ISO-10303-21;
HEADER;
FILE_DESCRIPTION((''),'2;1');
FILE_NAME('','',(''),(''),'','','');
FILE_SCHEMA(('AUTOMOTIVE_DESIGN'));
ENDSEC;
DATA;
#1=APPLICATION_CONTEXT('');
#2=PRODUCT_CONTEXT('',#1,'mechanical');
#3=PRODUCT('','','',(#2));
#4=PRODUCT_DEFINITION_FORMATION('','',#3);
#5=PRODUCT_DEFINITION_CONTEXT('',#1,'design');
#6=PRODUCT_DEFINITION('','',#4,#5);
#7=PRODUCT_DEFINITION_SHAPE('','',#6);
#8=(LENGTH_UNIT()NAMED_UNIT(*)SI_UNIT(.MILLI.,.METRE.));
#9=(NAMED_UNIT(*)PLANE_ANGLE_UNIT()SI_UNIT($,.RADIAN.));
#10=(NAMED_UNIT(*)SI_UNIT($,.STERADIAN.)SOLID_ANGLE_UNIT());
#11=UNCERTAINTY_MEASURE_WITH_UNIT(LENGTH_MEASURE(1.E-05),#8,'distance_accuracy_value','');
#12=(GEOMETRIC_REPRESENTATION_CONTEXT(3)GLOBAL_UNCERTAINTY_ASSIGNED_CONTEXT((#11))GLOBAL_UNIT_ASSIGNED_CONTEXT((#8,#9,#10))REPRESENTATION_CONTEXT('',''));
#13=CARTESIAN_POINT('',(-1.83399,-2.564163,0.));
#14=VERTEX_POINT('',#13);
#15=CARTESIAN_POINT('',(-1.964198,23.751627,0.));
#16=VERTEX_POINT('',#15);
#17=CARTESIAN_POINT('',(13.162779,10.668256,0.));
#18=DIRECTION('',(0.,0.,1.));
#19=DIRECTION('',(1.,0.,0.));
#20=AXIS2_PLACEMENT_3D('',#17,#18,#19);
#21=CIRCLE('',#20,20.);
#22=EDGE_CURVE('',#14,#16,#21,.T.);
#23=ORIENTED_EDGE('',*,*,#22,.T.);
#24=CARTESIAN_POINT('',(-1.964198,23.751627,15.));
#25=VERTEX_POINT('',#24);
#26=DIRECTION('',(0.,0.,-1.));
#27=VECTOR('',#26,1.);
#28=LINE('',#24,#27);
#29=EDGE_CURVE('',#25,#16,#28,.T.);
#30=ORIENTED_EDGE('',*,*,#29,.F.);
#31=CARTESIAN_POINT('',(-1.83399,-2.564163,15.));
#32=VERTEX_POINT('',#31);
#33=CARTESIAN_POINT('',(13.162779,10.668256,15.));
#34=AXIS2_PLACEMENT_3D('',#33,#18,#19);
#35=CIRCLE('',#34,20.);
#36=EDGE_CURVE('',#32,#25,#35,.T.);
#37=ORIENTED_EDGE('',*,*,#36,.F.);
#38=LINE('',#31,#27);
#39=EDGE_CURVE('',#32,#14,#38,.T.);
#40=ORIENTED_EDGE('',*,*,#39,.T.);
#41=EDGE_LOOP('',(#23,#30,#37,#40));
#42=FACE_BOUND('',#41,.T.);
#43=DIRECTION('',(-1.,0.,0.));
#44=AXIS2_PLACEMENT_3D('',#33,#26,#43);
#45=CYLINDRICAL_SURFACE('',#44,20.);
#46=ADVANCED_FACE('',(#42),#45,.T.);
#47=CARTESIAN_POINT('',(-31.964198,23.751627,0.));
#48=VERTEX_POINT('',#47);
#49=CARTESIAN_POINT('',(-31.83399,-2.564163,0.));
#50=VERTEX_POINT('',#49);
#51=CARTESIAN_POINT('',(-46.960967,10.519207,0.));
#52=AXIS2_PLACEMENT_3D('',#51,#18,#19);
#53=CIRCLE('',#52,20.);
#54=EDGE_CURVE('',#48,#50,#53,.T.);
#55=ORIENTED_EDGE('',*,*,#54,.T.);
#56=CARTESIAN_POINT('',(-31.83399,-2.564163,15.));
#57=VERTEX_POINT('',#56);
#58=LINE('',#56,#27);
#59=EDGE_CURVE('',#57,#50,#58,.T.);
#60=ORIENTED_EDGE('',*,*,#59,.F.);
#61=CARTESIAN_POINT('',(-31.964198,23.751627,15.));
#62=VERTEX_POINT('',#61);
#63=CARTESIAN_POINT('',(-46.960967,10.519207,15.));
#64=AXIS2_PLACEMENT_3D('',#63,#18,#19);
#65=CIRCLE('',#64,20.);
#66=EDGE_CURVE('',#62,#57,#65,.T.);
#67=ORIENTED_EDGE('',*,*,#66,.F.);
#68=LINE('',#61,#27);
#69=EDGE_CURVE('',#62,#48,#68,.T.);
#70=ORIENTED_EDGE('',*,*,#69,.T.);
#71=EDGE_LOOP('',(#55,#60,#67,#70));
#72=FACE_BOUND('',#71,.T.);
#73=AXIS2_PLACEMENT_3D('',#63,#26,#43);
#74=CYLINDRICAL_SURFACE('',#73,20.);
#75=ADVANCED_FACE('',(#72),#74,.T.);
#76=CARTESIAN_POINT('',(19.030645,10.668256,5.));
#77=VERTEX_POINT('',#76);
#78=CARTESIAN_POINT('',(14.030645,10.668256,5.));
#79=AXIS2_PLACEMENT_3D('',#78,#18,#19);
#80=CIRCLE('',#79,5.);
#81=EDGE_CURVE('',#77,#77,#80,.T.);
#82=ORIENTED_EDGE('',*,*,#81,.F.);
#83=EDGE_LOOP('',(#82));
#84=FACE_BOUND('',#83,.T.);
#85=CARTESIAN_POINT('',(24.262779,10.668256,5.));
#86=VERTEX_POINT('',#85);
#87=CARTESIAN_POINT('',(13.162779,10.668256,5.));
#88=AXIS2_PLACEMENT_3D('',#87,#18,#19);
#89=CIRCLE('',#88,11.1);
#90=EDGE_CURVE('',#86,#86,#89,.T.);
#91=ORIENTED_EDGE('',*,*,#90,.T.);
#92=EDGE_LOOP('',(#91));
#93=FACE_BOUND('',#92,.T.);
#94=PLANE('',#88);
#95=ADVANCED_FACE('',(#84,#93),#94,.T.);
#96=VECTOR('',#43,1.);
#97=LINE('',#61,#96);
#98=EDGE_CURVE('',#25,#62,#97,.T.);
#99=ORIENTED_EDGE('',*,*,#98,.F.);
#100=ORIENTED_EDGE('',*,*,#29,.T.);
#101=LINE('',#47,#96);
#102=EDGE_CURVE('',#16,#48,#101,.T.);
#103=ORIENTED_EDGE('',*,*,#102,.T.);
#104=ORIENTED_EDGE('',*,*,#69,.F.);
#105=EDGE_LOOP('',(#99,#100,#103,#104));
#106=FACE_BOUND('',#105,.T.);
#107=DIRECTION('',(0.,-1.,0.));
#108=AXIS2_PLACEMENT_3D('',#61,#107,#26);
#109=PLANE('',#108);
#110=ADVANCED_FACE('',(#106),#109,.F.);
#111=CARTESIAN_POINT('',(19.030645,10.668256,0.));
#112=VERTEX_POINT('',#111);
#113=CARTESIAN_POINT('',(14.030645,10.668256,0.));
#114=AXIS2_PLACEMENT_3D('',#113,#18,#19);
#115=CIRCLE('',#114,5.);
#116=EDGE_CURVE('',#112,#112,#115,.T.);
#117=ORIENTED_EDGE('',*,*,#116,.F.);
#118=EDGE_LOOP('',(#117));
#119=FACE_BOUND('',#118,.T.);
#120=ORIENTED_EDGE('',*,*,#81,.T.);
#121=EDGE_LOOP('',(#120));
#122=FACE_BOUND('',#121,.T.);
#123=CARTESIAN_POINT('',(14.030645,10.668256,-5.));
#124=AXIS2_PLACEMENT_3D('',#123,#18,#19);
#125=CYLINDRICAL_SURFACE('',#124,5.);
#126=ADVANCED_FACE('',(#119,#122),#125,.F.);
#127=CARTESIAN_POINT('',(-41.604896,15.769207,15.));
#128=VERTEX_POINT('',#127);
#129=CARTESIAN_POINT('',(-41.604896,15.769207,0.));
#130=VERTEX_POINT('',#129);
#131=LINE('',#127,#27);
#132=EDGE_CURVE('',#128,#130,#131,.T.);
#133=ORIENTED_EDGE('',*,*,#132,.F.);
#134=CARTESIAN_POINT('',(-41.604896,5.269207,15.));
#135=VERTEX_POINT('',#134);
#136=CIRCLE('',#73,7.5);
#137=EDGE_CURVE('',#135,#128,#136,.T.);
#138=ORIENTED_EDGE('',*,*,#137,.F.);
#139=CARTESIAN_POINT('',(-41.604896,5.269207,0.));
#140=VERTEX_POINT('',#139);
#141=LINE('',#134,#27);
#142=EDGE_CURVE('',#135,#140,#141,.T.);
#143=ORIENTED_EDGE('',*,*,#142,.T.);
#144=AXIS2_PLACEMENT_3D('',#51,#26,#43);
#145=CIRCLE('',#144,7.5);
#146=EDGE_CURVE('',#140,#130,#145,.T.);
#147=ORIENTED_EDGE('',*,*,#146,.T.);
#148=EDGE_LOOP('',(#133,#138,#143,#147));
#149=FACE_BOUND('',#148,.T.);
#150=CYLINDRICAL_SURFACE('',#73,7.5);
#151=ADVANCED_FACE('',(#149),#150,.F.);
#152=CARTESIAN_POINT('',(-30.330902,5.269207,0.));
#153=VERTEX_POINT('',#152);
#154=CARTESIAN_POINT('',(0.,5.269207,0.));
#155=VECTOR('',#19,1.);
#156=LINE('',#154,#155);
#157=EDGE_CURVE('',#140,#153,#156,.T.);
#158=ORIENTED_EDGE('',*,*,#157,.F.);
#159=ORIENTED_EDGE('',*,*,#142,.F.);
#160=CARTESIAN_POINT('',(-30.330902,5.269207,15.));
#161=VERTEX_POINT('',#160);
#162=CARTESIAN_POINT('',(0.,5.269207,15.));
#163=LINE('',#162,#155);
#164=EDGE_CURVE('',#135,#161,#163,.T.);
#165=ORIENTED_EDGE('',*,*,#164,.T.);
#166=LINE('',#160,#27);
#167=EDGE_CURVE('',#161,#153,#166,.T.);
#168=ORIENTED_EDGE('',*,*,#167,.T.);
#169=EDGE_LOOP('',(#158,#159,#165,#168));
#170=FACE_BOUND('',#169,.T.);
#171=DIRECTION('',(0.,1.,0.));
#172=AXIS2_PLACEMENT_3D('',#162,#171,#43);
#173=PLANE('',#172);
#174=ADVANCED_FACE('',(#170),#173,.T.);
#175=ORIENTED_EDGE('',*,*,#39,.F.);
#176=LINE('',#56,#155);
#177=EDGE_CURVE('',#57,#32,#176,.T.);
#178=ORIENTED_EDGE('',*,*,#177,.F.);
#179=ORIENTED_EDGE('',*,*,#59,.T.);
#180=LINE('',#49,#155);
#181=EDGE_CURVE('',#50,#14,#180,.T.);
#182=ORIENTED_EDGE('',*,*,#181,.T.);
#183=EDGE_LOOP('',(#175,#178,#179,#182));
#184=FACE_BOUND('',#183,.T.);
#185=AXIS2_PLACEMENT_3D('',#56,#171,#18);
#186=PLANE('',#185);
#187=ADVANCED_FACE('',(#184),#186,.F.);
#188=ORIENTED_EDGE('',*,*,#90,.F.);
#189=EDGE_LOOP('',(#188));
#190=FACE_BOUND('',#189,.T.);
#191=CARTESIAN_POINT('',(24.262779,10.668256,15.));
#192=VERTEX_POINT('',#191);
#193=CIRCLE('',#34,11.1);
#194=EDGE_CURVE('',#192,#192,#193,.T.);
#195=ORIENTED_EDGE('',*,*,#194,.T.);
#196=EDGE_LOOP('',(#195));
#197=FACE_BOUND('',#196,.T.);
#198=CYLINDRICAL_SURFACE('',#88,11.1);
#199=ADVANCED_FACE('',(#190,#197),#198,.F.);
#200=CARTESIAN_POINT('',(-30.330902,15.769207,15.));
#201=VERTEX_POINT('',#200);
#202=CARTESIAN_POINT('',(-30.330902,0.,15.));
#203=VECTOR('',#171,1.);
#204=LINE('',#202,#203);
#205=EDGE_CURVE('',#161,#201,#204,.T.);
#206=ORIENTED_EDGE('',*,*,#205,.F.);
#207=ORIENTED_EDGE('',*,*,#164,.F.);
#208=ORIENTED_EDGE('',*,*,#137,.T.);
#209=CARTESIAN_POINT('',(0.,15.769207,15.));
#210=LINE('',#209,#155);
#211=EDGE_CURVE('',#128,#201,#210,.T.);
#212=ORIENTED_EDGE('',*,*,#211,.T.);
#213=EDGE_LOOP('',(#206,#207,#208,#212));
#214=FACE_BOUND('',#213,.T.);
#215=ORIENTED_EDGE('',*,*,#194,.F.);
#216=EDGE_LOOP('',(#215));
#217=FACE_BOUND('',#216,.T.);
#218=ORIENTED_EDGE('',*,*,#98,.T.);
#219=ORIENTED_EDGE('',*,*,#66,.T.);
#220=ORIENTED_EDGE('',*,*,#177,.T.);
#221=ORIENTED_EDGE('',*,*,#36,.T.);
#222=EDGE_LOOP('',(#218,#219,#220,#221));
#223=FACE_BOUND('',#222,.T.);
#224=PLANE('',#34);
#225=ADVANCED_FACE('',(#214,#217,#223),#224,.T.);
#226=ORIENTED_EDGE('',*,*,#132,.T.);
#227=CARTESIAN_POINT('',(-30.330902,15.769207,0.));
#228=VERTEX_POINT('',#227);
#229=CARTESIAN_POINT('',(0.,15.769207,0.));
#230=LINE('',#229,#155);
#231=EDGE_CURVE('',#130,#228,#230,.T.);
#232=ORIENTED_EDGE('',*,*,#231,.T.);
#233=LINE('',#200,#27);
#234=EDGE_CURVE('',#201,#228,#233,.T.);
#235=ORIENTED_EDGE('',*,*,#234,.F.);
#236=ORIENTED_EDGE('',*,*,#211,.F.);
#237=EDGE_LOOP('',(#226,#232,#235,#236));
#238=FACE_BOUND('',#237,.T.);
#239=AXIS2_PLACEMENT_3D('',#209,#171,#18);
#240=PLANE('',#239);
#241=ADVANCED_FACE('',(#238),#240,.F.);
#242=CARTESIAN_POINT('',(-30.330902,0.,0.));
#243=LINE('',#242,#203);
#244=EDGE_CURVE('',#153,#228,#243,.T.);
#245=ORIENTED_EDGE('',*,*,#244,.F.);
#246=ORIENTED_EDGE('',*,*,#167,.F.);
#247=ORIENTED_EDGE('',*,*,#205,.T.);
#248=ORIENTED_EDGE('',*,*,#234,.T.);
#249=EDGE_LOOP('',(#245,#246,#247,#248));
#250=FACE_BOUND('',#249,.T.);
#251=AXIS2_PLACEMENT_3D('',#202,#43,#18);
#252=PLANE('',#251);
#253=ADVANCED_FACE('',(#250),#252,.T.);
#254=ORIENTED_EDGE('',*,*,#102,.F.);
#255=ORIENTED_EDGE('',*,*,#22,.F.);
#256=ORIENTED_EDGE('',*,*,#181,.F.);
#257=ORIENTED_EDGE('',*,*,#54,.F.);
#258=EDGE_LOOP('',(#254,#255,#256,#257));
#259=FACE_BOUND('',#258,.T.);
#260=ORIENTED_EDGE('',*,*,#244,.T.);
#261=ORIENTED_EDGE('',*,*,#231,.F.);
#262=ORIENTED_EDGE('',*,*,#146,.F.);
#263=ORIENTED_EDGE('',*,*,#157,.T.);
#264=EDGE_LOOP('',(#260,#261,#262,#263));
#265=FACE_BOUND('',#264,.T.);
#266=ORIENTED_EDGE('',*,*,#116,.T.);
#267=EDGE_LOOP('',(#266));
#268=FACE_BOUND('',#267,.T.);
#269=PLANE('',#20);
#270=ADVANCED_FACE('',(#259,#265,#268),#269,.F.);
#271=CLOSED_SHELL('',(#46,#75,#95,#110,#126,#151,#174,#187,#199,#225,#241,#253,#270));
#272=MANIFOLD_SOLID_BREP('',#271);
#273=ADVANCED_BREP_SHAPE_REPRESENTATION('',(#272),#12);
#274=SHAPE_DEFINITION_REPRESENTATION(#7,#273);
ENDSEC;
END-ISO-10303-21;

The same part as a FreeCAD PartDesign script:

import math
import FreeCAD as App
import Part
import Sketcher
from FreeCAD import Vector

doc = App.newDocument("Part")
params = doc.addObject("Spreadsheet::Sheet", "Params")
for row, (alias, value) in enumerate([
    ("sketch1_radius", "20 mm"),
    ("sketch1_width", "30 mm"),
    ("pad1_length", "15 mm"),
    ("sketch2_diameter", "22.2 mm"),
    ("pocket1_length", "10 mm"),
    ("sketch3_diameter", "10 mm"),
    ("pocket2_length", "10 mm"),
    ("sketch4_radius", "7.5 mm"),
    ("sketch4_height", "10.5 mm"),
], start=1):
    params.set(f"A{row}", alias)
    params.set(f"B{row}", "=" + value)
    params.setAlias(f"B{row}", alias)

body = doc.addObject("PartDesign::Body", "Body")

# Sketch on XY plane
sketch1 = body.newObject("Sketcher::SketchObject", "Sketch")
sketch1.AttachmentSupport = (doc.getObject("XY_Plane"), [""])
sketch1.MapMode = "FlatFace"
sketch1.addGeometry([
    Part.LineSegment(Vector(-32, -3, 0), Vector(-2, -3, 0)),
    Part.ArcOfCircle(Part.Circle(Vector(13, 11, 0), Vector(0, 0, 1), 20), math.radians(-139), math.radians(139)),
    Part.LineSegment(Vector(-2, 24, 0), Vector(-32, 24, 0)),
    Part.ArcOfCircle(Part.Circle(Vector(-47, 11, 0), Vector(0, 0, 1), 20), math.radians(41), math.radians(319)),
], False)
sketch1.addConstraint([
    Sketcher.Constraint("Coincident", 0, 2, 1, 1),
    Sketcher.Constraint("Coincident", 1, 2, 2, 1),
    Sketcher.Constraint("Coincident", 2, 2, 3, 1),
    Sketcher.Constraint("Coincident", 3, 2, 0, 1),
    Sketcher.Constraint("Horizontal", 0),
    Sketcher.Constraint("Horizontal", 2),
    Sketcher.Constraint("Equal", 1, 3),
    Sketcher.Constraint("Equal", 0, 2),
    Sketcher.Constraint("Radius", 1, 20.0),
    Sketcher.Constraint("DistanceX", 0, 1, 0, 2, 30.0),
    Sketcher.Constraint("DistanceX", -1, 1, 1, 3, 13.162779),
    Sketcher.Constraint("DistanceX", 0, 2, -1, 1, 1.83399),
    Sketcher.Constraint("DistanceY", 3, 3, 1, 3, 0.149049),
    Sketcher.Constraint("DistanceY", -1, 1, 1, 3, 10.668256),
])
sketch1.setExpression("Constraints[8]", "Params.sketch1_radius")
sketch1.setExpression("Constraints[9]", "Params.sketch1_width")
pad1 = body.newObject("PartDesign::Pad", "Pad")
pad1.Profile = sketch1
pad1.setExpression("Length", "Params.pad1_length")

# Sketch on XY plane
sketch2 = body.newObject("Sketcher::SketchObject", "Sketch001")
sketch2.AttachmentSupport = (doc.getObject("XY_Plane"), [""])
sketch2.MapMode = "FlatFace"
sketch2.AttachmentOffset = App.Placement(Vector(0, 0, 15), App.Rotation())
sketch2.addGeometry(Part.Circle(Vector(13, 11, 0), Vector(0, 0, 1), 11), False)
sketch2.addConstraint([
    Sketcher.Constraint("Diameter", 0, 22.2),
    Sketcher.Constraint("DistanceX", -1, 1, 0, 3, 13.162779),
    Sketcher.Constraint("DistanceY", -1, 1, 0, 3, 10.668256),
])
sketch2.setExpression("Constraints[0]", "Params.sketch2_diameter")
pocket1 = body.newObject("PartDesign::Pocket", "Pocket")
pocket1.Profile = sketch2
pocket1.setExpression("Length", "Params.pocket1_length")

# Sketch on XY plane
sketch3 = body.newObject("Sketcher::SketchObject", "Sketch002")
sketch3.AttachmentSupport = (doc.getObject("XY_Plane"), [""])
sketch3.MapMode = "FlatFace"
sketch3.AttachmentOffset = App.Placement(Vector(0, 0, 5), App.Rotation())
sketch3.addGeometry(Part.Circle(Vector(14, 11, 0), Vector(0, 0, 1), 5), False)
sketch3.addConstraint([
    Sketcher.Constraint("Diameter", 0, 10.0),
    Sketcher.Constraint("DistanceX", -1, 1, 0, 3, 14.030645),
    Sketcher.Constraint("DistanceY", -1, 1, 0, 3, 10.668256),
])
sketch3.setExpression("Constraints[0]", "Params.sketch3_diameter")
pocket2 = body.newObject("PartDesign::Pocket", "Pocket001")
pocket2.Profile = sketch3
pocket2.setExpression("Length", "Params.pocket2_length")

# Sketch on XY plane
sketch4 = body.newObject("Sketcher::SketchObject", "Sketch003")
sketch4.AttachmentSupport = (doc.getObject("XY_Plane"), [""])
sketch4.MapMode = "FlatFace"
sketch4.addGeometry([
    Part.ArcOfCircle(Part.Circle(Vector(-47, 11, 0), Vector(0, 0, 1), 8), math.radians(44), math.radians(316)),
    Part.LineSegment(Vector(-42, 16, 0), Vector(-30, 16, 0)),
    Part.LineSegment(Vector(-30, 16, 0), Vector(-30, 5, 0)),
    Part.LineSegment(Vector(-30, 5, 0), Vector(-42, 5, 0)),
], False)
sketch4.addConstraint([
    Sketcher.Constraint("Coincident", 0, 1, 1, 1),
    Sketcher.Constraint("Coincident", 1, 2, 2, 1),
    Sketcher.Constraint("Coincident", 2, 2, 3, 1),
    Sketcher.Constraint("Coincident", 3, 2, 0, 2),
    Sketcher.Constraint("Horizontal", 1),
    Sketcher.Constraint("Vertical", 2),
    Sketcher.Constraint("Horizontal", 3),
    Sketcher.Constraint("Vertical", 0, 1, 3, 2),
    Sketcher.Constraint("Radius", 0, 7.5),
    Sketcher.Constraint("DistanceY", 2, 2, 2, 1, 10.5),
    Sketcher.Constraint("DistanceX", 1, 1, 1, 2, 11.273993),
    Sketcher.Constraint("DistanceX", 0, 3, -1, 1, 46.960967),
    Sketcher.Constraint("DistanceY", -1, 1, 0, 3, 10.519207),
])
sketch4.setExpression("Constraints[8]", "Params.sketch4_radius")
sketch4.setExpression("Constraints[9]", "Params.sketch4_height")
pocket3 = body.newObject("PartDesign::Pocket", "Pocket002")
pocket3.Profile = sketch4
pocket3.Type = "ThroughAll"
pocket3.Reversed = True

doc.recompute()
